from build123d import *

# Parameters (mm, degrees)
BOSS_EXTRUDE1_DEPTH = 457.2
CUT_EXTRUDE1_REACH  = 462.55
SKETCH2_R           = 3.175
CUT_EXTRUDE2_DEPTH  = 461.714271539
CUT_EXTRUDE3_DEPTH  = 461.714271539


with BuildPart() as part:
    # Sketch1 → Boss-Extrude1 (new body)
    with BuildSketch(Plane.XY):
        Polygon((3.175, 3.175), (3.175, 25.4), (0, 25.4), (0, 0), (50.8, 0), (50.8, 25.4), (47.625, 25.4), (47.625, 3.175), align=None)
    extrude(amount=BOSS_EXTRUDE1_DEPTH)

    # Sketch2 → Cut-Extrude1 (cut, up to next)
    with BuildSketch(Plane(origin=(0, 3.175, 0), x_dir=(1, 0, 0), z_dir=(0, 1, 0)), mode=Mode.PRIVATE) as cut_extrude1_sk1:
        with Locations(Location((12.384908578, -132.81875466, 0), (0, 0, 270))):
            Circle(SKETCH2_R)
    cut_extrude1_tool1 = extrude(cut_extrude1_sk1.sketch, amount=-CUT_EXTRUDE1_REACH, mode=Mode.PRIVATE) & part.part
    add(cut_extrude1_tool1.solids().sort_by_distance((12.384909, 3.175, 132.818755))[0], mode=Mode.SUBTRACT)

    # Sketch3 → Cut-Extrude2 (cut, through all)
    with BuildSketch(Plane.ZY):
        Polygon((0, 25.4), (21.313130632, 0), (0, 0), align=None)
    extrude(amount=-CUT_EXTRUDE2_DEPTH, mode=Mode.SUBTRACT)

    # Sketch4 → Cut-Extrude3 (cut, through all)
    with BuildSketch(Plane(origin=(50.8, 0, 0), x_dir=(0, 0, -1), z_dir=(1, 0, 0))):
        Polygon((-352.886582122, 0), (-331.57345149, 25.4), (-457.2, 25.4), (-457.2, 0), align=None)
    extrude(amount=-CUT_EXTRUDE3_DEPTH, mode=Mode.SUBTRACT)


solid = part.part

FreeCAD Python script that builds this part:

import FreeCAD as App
import Part
import Sketcher

V = App.Vector
Q = App.Units.Quantity

doc = App.newDocument("Part")
params = doc.addObject("Spreadsheet::Sheet", "Params")
for row, (alias, value) in enumerate([
    ("sketch1_width", "2 in"),
    ("sketch1_height", "1 in"),
    ("sketch1_width2", "1.75 in"),
    ("sketch1_height2", "0.875 in"),
    ("pad1_length", "18 in"),
    ("sketch2_diameter", "0.25 in"),
    ("sketch3_width", "1 in"),
    ("sketch4_width", "1 in"),
], start=1):
    params.set(f"A{row}", alias)
    params.set(f"B{row}", "=" + value)
    params.setAlias(f"B{row}", alias)

body = doc.addObject("PartDesign::Body", "Body")

# Sketch on XY plane
sketch1 = body.newObject("Sketcher::SketchObject", "Sketch")
sketch1.AttachmentSupport = (doc.getObject("XY_Plane"), [""])
sketch1.MapMode = "FlatFace"
sketch1.addGeometry([
    Part.LineSegment(V(3.175, 3.175, 0), V(3.175, 25.4, 0)),  # 0
    Part.LineSegment(V(3.175, 25.4, 0), V(0, 25.4, 0)),  # 1
    Part.LineSegment(V(0, 25.4, 0), V(0, 0, 0)),  # 2
    Part.LineSegment(V(0, 0, 0), V(50.8, 0, 0)),  # 3
    Part.LineSegment(V(50.8, 0, 0), V(50.8, 25.4, 0)),  # 4
    Part.LineSegment(V(50.8, 25.4, 0), V(47.625, 25.4, 0)),  # 5
    Part.LineSegment(V(47.625, 25.4, 0), V(47.625, 3.175, 0)),  # 6
    Part.LineSegment(V(47.625, 3.175, 0), V(3.175, 3.175, 0)),  # 7
], False)
sketch1.addConstraint([
    Sketcher.Constraint("Coincident", 0, 2, 1, 1),
    Sketcher.Constraint("Coincident", 1, 2, 2, 1),
    Sketcher.Constraint("Coincident", 2, 2, 3, 1),
    Sketcher.Constraint("Coincident", 3, 2, 4, 1),
    Sketcher.Constraint("Coincident", 4, 2, 5, 1),
    Sketcher.Constraint("Coincident", 5, 2, 6, 1),
    Sketcher.Constraint("Coincident", 6, 2, 7, 1),
    Sketcher.Constraint("Coincident", 7, 2, 0, 1),
    Sketcher.Constraint("Vertical", 0),
    Sketcher.Constraint("Horizontal", 1),
    Sketcher.Constraint("Vertical", 2),
    Sketcher.Constraint("Horizontal", 3),
    Sketcher.Constraint("Vertical", 4),
    Sketcher.Constraint("Horizontal", 5),
    Sketcher.Constraint("Vertical", 6),
    Sketcher.Constraint("Horizontal", 7),
    Sketcher.Constraint("Coincident", 2, 2, -1, 1),
    Sketcher.Constraint("Horizontal", 1, 2, 4, 2),
    Sketcher.Constraint("Equal", 1, 5),
    Sketcher.Constraint("DistanceX", 3, 1, 3, 2, Q("2 in")),
    Sketcher.Constraint("DistanceY", 2, 2, 2, 1, Q("1 in")),
    Sketcher.Constraint("DistanceX", 7, 2, 7, 1, Q("1.75 in")),
    Sketcher.Constraint("DistanceY", 0, 1, 0, 2, Q("0.875 in")),
])
sketch1.setExpression("Constraints[19]", "Params.sketch1_width")
sketch1.setExpression("Constraints[20]", "Params.sketch1_height")
sketch1.setExpression("Constraints[21]", "Params.sketch1_width2")
sketch1.setExpression("Constraints[22]", "Params.sketch1_height2")
pad1 = body.newObject("PartDesign::Pad", "Pad")
pad1.Profile = sketch1
pad1.setExpression("Length", "Params.pad1_length")

# Sketch on XZ plane
sketch2 = body.newObject("Sketcher::SketchObject", "Sketch001")
sketch2.AttachmentSupport = (doc.getObject("XZ_Plane"), [""])
sketch2.MapMode = "FlatFace"
sketch2.AttachmentOffset = App.Placement(V(0, 0, -0.125 * 25.4), App.Rotation())
sketch2.addGeometry(Part.Circle(V(12.384909, 132.818755, 0), V(0, 0, 1), 3.175), False)
sketch2.addConstraint([
    Sketcher.Constraint("Diameter", 0, Q("0.25 in")),
    Sketcher.Constraint("DistanceX", -1, 1, 0, 3, 12.384909),
    Sketcher.Constraint("DistanceY", -1, 1, 0, 3, 132.818755),
])
sketch2.setExpression("Constraints[0]", "Params.sketch2_diameter")
pocket1 = body.newObject("PartDesign::Pocket", "Pocket")
pocket1.Profile = sketch2
pocket1.Type = "UpToFirst"
pocket1.Reversed = True

# Sketch on YZ plane
sketch3 = body.newObject("Sketcher::SketchObject", "Sketch002")
sketch3.AttachmentSupport = (doc.getObject("YZ_Plane"), [""])
sketch3.MapMode = "FlatFace"
sketch3.addGeometry([
    Part.LineSegment(V(0, 21.313131, 0), V(25.4, 0, 0)),
    Part.LineSegment(V(25.4, 0, 0), V(0, 0, 0)),
    Part.LineSegment(V(0, 0, 0), V(0, 21.313131, 0)),
], False)
sketch3.addConstraint([
    Sketcher.Constraint("Coincident", 0, 2, 1, 1),
    Sketcher.Constraint("Coincident", 1, 2, 2, 1),
    Sketcher.Constraint("Coincident", 2, 2, 0, 1),
    Sketcher.Constraint("Horizontal", 1),
    Sketcher.Constraint("Vertical", 2),
    Sketcher.Constraint("Coincident", 1, 2, -1, 1),
    Sketcher.Constraint("DistanceX", 1, 2, 1, 1, Q("1 in")),
    Sketcher.Constraint("Angle", 0, Q("-40 deg")),
])
sketch3.setExpression("Constraints[6]", "Params.sketch3_width")
pocket2 = body.newObject("PartDesign::Pocket", "Pocket001")
pocket2.Profile = sketch3
pocket2.Type = "ThroughAll"
pocket2.Reversed = True

# Sketch on YZ plane
sketch4 = body.newObject("Sketcher::SketchObject", "Sketch003")
sketch4.AttachmentSupport = (doc.getObject("YZ_Plane"), [""])
sketch4.MapMode = "FlatFace"
sketch4.AttachmentOffset = App.Placement(V(0, 0, 2 * 25.4), App.Rotation())
sketch4.addGeometry([
    Part.LineSegment(V(0, 352.886582, 0), V(25.4, 331.573451, 0)),
    Part.LineSegment(V(25.4, 331.573451, 0), V(25.4, 457.2, 0)),
    Part.LineSegment(V(25.4, 457.2, 0), V(0, 457.2, 0)),
    Part.LineSegment(V(0, 457.2, 0), V(0, 352.886582, 0)),
], False)
sketch4.addConstraint([
    Sketcher.Constraint("Coincident", 0, 2, 1, 1),
    Sketcher.Constraint("Coincident", 1, 2, 2, 1),
    Sketcher.Constraint("Coincident", 2, 2, 3, 1),
    Sketcher.Constraint("Coincident", 3, 2, 0, 1),
    Sketcher.Constraint("Vertical", 1),
    Sketcher.Constraint("Horizontal", 2),
    Sketcher.Constraint("Vertical", 3),
    Sketcher.Constraint("PointOnObject", 2, 2, -2),
    Sketcher.Constraint("DistanceX", 2, 2, 2, 1, Q("1 in")),
    Sketcher.Constraint("DistanceY", -1, 1, 1, 2, Q("18 in")),
    Sketcher.Constraint("Angle", 0, Q("-40 deg")),
    Sketcher.Constraint("DistanceY", 1, 1, 1, 2, 125.626549),
])
sketch4.setExpression("Constraints[8]", "Params.sketch4_width")
pocket3 = body.newObject("PartDesign::Pocket", "Pocket002")
pocket3.Profile = sketch4
pocket3.Type = "ThroughAll"

doc.recompute()
